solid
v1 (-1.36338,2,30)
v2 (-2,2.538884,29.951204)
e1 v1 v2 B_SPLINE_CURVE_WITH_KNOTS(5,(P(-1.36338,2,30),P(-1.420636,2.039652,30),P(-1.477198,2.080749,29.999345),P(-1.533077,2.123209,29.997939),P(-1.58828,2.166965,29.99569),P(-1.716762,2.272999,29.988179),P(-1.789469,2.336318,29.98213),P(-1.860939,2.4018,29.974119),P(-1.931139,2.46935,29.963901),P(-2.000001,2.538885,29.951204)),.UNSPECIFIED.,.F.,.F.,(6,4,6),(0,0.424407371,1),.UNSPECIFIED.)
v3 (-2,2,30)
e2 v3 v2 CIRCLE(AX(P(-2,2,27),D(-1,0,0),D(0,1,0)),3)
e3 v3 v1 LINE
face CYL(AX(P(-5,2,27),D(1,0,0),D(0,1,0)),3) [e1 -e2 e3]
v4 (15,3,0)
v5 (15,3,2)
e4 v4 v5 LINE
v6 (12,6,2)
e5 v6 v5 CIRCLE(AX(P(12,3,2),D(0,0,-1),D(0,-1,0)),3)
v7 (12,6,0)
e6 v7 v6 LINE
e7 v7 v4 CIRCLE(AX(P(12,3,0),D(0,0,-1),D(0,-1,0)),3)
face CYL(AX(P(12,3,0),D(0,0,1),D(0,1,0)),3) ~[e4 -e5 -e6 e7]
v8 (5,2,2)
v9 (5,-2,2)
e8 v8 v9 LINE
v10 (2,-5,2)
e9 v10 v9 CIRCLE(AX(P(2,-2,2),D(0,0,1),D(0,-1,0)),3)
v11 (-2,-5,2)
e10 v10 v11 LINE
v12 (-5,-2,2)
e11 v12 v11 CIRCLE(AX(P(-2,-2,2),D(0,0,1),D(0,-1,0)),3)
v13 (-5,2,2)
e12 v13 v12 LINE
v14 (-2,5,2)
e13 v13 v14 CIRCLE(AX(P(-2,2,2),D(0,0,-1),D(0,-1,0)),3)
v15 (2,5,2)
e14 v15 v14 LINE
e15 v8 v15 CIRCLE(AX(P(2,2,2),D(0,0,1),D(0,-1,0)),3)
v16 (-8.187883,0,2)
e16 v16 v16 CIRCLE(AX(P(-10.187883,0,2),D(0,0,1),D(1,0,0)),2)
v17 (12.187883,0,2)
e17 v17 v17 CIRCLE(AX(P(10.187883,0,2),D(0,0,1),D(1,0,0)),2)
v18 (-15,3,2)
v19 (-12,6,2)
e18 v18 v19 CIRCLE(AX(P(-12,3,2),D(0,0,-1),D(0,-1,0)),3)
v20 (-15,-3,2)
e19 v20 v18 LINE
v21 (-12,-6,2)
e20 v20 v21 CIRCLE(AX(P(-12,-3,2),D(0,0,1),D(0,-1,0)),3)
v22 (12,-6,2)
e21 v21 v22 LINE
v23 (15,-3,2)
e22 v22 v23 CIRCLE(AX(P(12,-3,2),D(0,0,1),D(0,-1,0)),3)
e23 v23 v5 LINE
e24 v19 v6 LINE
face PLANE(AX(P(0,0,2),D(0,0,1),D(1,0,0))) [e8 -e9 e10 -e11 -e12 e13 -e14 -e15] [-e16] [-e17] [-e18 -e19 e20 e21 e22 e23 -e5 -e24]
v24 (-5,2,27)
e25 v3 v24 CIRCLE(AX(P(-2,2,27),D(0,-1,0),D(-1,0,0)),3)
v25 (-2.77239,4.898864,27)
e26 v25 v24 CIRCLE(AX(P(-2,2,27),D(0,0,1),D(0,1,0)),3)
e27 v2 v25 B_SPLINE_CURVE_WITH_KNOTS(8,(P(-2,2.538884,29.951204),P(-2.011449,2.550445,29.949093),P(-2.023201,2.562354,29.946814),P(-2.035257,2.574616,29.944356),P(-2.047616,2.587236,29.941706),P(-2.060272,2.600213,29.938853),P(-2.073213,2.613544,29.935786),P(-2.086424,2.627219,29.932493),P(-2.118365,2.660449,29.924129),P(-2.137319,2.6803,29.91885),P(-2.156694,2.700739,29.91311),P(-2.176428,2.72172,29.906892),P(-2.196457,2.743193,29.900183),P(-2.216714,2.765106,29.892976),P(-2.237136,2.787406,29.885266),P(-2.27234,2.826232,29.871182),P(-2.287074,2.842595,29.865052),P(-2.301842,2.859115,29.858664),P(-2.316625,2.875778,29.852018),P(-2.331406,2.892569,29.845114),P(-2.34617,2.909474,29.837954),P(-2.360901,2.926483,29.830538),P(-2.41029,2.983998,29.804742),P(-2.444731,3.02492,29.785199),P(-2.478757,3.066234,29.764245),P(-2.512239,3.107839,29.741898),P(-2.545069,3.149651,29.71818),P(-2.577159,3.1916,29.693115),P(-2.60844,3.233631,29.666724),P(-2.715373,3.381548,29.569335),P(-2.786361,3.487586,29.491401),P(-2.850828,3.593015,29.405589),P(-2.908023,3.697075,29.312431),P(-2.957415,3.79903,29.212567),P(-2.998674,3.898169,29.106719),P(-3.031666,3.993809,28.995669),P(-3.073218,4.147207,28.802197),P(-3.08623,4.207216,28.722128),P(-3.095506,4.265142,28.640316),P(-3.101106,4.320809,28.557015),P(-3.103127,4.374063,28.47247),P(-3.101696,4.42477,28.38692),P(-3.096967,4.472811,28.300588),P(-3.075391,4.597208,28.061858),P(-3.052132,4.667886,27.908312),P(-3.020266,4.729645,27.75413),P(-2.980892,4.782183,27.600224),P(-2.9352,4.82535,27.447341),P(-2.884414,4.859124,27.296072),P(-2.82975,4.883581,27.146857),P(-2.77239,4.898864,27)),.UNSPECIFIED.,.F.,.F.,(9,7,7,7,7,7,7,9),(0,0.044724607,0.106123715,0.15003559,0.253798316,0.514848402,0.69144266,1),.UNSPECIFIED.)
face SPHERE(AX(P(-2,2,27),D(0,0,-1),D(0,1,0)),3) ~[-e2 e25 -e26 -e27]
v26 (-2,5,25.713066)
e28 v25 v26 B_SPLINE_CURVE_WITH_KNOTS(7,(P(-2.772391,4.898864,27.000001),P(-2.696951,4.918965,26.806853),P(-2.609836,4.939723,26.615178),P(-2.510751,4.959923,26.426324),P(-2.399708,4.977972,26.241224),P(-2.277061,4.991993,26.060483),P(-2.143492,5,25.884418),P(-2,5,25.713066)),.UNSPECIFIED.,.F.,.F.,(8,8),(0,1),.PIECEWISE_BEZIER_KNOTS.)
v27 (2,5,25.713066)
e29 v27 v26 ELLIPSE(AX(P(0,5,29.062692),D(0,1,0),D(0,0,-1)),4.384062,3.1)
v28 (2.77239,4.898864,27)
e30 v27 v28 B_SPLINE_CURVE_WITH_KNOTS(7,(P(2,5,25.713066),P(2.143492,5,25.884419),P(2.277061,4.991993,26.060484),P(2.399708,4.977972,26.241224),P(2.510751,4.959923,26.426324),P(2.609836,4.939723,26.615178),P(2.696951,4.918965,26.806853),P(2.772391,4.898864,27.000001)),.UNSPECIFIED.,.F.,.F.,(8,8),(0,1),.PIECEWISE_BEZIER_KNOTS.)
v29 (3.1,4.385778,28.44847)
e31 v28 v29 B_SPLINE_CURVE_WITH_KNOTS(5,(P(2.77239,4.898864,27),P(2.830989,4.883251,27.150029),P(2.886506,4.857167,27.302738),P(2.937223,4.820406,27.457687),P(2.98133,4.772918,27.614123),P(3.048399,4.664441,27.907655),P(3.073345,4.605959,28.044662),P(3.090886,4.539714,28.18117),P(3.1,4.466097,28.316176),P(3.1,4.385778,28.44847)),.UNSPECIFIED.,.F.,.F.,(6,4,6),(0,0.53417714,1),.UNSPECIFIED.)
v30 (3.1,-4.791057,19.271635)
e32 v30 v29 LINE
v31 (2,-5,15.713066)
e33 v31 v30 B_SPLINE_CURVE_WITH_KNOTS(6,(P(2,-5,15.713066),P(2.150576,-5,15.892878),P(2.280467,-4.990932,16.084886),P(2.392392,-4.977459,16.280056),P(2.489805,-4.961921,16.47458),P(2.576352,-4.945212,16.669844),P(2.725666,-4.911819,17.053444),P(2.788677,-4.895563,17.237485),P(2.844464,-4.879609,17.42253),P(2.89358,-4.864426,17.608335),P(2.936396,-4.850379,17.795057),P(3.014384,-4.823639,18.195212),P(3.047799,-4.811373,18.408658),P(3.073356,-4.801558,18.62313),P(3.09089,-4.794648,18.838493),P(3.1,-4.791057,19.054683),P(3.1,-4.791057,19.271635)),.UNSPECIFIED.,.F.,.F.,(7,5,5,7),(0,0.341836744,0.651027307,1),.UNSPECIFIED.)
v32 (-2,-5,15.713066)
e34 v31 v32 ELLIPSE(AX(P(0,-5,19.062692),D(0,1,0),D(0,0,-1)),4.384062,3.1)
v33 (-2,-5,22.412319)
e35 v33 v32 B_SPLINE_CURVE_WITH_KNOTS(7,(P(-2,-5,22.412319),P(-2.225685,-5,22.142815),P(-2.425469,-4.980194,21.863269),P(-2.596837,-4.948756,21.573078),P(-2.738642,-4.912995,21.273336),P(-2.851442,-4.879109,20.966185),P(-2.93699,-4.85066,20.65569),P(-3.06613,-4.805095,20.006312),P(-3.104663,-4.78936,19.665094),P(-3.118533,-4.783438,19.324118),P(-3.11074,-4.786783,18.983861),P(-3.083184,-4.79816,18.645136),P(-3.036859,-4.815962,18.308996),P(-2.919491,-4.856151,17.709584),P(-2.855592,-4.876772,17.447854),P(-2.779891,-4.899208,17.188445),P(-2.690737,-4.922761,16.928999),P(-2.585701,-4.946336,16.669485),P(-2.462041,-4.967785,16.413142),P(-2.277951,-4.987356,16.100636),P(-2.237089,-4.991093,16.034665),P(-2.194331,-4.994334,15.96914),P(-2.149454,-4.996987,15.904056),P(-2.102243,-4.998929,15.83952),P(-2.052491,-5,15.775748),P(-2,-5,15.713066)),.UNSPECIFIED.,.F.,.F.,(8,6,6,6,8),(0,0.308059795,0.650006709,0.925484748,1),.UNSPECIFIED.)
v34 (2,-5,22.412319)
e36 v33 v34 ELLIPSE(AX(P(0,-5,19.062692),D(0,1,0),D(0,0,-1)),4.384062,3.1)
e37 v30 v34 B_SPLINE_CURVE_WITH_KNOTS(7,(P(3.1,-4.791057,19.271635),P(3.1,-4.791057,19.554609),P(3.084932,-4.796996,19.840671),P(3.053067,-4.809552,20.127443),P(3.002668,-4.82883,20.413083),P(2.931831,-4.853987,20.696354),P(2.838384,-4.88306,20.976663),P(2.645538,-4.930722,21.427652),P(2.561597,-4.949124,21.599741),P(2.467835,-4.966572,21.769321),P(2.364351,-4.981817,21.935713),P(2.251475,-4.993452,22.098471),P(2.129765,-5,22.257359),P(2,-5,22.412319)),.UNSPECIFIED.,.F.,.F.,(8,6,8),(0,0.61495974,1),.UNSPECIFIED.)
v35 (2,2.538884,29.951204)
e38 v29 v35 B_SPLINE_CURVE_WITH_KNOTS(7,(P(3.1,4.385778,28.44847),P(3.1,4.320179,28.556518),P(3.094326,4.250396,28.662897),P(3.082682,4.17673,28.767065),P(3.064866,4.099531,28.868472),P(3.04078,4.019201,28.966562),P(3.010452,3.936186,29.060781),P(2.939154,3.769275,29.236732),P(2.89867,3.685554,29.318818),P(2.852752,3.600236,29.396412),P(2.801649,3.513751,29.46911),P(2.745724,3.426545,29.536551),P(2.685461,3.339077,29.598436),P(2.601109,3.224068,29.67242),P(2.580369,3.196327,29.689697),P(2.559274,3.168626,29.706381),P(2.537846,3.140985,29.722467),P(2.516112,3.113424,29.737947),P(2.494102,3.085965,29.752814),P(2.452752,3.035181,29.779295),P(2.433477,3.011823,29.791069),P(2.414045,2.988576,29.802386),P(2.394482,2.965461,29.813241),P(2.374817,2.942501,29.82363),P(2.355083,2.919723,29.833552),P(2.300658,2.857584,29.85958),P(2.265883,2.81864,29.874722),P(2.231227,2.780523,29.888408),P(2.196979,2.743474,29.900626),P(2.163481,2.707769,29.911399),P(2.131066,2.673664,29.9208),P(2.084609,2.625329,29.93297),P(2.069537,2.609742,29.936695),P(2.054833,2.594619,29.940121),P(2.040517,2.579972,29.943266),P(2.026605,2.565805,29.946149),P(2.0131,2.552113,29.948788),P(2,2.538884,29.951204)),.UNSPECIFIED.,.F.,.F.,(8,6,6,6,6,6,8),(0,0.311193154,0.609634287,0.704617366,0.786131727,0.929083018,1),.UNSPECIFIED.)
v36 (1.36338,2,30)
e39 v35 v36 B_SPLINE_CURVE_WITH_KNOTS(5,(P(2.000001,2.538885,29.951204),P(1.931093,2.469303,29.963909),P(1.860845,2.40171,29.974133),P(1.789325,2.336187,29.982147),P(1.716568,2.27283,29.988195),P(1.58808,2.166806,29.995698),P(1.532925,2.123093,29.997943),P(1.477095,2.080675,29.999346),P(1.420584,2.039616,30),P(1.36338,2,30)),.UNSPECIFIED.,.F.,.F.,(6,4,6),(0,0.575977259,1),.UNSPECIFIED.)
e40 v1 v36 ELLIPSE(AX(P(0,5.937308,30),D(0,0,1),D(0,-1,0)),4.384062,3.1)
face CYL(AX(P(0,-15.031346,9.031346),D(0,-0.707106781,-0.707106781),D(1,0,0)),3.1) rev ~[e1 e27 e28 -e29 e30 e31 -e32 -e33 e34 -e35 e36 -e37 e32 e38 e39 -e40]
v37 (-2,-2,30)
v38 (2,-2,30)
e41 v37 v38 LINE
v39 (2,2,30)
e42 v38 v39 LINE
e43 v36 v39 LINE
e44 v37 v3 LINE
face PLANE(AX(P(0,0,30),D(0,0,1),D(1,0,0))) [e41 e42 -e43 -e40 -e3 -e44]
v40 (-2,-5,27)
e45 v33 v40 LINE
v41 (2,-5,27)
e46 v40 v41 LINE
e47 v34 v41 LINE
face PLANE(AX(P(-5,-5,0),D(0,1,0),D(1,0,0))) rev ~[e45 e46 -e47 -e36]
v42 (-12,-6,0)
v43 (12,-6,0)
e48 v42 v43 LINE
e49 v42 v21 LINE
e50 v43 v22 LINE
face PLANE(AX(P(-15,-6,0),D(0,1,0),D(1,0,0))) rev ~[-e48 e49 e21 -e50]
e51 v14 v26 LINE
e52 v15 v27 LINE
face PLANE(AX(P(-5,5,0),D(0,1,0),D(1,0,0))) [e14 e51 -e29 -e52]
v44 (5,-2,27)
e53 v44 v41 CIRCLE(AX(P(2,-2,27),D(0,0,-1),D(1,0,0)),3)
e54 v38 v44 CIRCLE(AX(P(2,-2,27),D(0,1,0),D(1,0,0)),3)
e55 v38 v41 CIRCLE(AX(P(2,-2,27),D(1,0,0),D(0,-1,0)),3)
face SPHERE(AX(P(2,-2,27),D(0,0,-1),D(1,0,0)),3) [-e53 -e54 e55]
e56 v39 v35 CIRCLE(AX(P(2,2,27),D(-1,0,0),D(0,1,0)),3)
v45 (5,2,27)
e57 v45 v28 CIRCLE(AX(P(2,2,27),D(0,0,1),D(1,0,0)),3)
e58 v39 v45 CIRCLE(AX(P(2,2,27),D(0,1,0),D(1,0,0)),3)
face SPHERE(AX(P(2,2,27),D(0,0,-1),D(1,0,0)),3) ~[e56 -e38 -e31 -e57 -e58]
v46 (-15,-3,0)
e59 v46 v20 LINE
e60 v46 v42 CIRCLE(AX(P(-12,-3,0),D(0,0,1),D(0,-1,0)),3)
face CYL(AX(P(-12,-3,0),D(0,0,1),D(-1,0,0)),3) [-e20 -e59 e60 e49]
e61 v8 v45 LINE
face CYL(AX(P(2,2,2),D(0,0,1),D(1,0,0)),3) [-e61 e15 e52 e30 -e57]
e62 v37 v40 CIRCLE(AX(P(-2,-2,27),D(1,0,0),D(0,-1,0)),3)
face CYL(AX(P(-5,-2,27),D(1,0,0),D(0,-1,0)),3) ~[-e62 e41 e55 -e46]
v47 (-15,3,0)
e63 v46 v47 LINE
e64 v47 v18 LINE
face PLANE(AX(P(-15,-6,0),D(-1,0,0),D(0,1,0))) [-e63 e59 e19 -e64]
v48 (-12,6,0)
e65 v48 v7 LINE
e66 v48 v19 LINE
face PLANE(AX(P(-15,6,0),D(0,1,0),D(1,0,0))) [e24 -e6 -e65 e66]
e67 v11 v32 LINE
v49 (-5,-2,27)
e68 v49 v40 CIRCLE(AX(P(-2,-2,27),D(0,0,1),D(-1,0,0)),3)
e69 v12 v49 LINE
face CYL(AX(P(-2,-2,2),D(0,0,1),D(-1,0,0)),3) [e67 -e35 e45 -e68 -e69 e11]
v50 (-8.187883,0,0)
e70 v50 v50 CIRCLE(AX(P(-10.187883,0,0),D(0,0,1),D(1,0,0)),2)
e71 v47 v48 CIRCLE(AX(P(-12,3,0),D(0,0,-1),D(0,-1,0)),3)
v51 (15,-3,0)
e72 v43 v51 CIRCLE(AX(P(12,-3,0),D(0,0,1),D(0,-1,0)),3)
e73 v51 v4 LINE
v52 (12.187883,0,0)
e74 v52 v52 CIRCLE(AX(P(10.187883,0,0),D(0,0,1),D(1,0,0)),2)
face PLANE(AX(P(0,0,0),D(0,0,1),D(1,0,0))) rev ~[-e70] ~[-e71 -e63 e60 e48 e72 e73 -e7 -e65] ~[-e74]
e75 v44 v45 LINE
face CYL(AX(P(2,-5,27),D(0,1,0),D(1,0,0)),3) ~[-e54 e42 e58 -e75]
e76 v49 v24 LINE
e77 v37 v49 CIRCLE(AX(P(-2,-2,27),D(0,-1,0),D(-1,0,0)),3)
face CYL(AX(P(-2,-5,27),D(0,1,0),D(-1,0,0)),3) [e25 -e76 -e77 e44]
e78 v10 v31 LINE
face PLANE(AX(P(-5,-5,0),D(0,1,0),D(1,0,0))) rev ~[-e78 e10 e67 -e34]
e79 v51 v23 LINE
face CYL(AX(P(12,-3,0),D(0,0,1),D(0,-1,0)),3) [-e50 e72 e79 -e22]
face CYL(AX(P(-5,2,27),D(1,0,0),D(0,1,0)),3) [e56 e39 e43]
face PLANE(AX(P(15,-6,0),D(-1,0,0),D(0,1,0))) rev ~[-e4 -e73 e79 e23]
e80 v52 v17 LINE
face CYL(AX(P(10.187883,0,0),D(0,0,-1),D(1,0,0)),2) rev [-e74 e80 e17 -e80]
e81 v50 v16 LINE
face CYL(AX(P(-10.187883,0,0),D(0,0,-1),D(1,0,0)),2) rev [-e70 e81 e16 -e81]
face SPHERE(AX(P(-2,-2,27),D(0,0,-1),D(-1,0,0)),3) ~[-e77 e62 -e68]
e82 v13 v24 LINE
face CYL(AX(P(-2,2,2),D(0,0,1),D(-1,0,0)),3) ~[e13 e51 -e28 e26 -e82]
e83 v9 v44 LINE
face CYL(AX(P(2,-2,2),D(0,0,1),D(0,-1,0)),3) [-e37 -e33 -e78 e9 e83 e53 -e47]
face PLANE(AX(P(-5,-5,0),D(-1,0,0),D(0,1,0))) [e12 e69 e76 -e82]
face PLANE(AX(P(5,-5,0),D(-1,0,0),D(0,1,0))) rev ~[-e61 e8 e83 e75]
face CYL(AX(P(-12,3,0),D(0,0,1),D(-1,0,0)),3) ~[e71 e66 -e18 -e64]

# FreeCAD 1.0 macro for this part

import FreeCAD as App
import Part
import Sketcher
Q = App.Units.Quantity


def edges_at(feature, points):
    """Names of the edges that pass closest to the given points."""
    edges = feature.Shape.Edges
    near = lambda p: min(range(len(edges)), key=lambda i: edges[i].distToShape(Part.Vertex(*p))[0])
    return sorted({f"Edge{near(p) + 1}" for p in points})


def add_polygon(sketch, points):
    """Adds a closed chain of lines whose ends are joined by coincident constraints."""
    first, n = sketch.GeometryCount, len(points)
    for a, b in zip(points, points[1:] + points[:1]):
        sketch.addGeometry(Part.LineSegment(App.Vector(*a, 0), App.Vector(*b, 0)), False)
    for i in range(n):
        sketch.addConstraint(Sketcher.Constraint("Coincident", first + i, 2, first + (i + 1) % n, 1))

doc = App.newDocument("Part")
body = doc.addObject("PartDesign::Body", "Body")

sketch1 = body.newObject("Sketcher::SketchObject", "Sketch")
sketch1.AttachmentSupport = (doc.getObject("XY_Plane"), [""])
sketch1.MapMode = "FlatFace"
add_polygon(sketch1, [(-15, 6), (-15, -6), (15, -6), (15, 6)])
sketch1.addGeometry(Part.Circle(App.Vector(-10.187883, 0, 0), App.Vector(0, 0, 1), 2), False)
sketch1.addGeometry(Part.Circle(App.Vector(10.187883, 0, 0), App.Vector(0, 0, 1), 2), False)
sketch1.addConstraint([
    Sketcher.Constraint("Vertical", 0),
    Sketcher.Constraint("Horizontal", 1),
    Sketcher.Constraint("Vertical", 2),
    Sketcher.Constraint("Horizontal", 3),
    Sketcher.Constraint("Equal", 4, 5),
    Sketcher.Constraint("Symmetric", 4, 3, 5, 3, -1, 1),
    Sketcher.Constraint("Symmetric", 0, 2, 2, 2, -1, 1),
    Sketcher.Constraint("PointOnObject", 4, 3, -1),
    Sketcher.Constraint("Diameter", 4, Q("4 mm")),
    Sketcher.Constraint("DistanceX", 1, 1, 1, 2, Q("30 mm")),
    Sketcher.Constraint("DistanceY", 0, 2, 0, 1, Q("12 mm")),
    Sketcher.Constraint("DistanceX", 4, 3, -1, 1, Q("10.187883 mm")),
])
pad1 = body.newObject("PartDesign::Pad", "Pad")
pad1.Profile = sketch1
pad1.Length = 2

sketch2 = body.newObject("Sketcher::SketchObject", "Sketch001")
sketch2.AttachmentSupport = (doc.getObject("XY_Plane"), [""])
sketch2.MapMode = "FlatFace"
add_polygon(sketch2, [(-5, 5), (-5, -5), (5, -5), (5, 5)])
sketch2.addConstraint([
    Sketcher.Constraint("Vertical", 0),
    Sketcher.Constraint("Horizontal", 1),
    Sketcher.Constraint("Vertical", 2),
    Sketcher.Constraint("Horizontal", 3),
    Sketcher.Constraint("Symmetric", 0, 2, 2, 2, -1, 1),
    Sketcher.Constraint("Equal", 3, 0),
    Sketcher.Constraint("DistanceX", 1, 1, 1, 2, Q("10 mm")),
])
pad2 = body.newObject("PartDesign::Pad", "Pad001")
pad2.Profile = sketch2
pad2.Length = 30
doc.recompute()

fillet = body.newObject("PartDesign::Fillet", "Fillet")
fillet.Base = (pad2, edges_at(pad2, [
    (-15, -6, 1),
    (-5, -5, 16),
    (5, -5, 16),
    (5, 5, 16),
    (15, -6, 1),
    (15, 6, 1),
    (-5, 5, 16),
    (-15, 6, 1),
    (5, 0, 30),
    (0, 5, 30),
    (-5, 0, 30),
    (0, -5, 30),
]))
fillet.Radius = 3

sketch3 = body.newObject("Sketcher::SketchObject", "Sketch002")
sketch3.Placement = App.Placement(App.Vector(0, -3, -3), App.Rotation(App.Vector(1, 0, 0), App.Vector(0, -0.707106781, 0.707106781), App.Vector(0, -0.707106781, -0.707106781), "ZXY"))
sketch3.addGeometry(Part.Circle(App.Vector(0, 17.014893, 0), App.Vector(0, 0, 1), 3.1), False)
sketch3.addConstraint([
    Sketcher.Constraint("PointOnObject", 0, 3, -2),
    Sketcher.Constraint("Diameter", 0, Q("6.2 mm")),
    Sketcher.Constraint("DistanceY", -1, 1, 0, 3, Q("17.014893 mm")),
])
pocket1 = body.newObject("PartDesign::Pocket", "Pocket")
pocket1.Profile = sketch3
pocket1.Length = 100

doc.recompute()
